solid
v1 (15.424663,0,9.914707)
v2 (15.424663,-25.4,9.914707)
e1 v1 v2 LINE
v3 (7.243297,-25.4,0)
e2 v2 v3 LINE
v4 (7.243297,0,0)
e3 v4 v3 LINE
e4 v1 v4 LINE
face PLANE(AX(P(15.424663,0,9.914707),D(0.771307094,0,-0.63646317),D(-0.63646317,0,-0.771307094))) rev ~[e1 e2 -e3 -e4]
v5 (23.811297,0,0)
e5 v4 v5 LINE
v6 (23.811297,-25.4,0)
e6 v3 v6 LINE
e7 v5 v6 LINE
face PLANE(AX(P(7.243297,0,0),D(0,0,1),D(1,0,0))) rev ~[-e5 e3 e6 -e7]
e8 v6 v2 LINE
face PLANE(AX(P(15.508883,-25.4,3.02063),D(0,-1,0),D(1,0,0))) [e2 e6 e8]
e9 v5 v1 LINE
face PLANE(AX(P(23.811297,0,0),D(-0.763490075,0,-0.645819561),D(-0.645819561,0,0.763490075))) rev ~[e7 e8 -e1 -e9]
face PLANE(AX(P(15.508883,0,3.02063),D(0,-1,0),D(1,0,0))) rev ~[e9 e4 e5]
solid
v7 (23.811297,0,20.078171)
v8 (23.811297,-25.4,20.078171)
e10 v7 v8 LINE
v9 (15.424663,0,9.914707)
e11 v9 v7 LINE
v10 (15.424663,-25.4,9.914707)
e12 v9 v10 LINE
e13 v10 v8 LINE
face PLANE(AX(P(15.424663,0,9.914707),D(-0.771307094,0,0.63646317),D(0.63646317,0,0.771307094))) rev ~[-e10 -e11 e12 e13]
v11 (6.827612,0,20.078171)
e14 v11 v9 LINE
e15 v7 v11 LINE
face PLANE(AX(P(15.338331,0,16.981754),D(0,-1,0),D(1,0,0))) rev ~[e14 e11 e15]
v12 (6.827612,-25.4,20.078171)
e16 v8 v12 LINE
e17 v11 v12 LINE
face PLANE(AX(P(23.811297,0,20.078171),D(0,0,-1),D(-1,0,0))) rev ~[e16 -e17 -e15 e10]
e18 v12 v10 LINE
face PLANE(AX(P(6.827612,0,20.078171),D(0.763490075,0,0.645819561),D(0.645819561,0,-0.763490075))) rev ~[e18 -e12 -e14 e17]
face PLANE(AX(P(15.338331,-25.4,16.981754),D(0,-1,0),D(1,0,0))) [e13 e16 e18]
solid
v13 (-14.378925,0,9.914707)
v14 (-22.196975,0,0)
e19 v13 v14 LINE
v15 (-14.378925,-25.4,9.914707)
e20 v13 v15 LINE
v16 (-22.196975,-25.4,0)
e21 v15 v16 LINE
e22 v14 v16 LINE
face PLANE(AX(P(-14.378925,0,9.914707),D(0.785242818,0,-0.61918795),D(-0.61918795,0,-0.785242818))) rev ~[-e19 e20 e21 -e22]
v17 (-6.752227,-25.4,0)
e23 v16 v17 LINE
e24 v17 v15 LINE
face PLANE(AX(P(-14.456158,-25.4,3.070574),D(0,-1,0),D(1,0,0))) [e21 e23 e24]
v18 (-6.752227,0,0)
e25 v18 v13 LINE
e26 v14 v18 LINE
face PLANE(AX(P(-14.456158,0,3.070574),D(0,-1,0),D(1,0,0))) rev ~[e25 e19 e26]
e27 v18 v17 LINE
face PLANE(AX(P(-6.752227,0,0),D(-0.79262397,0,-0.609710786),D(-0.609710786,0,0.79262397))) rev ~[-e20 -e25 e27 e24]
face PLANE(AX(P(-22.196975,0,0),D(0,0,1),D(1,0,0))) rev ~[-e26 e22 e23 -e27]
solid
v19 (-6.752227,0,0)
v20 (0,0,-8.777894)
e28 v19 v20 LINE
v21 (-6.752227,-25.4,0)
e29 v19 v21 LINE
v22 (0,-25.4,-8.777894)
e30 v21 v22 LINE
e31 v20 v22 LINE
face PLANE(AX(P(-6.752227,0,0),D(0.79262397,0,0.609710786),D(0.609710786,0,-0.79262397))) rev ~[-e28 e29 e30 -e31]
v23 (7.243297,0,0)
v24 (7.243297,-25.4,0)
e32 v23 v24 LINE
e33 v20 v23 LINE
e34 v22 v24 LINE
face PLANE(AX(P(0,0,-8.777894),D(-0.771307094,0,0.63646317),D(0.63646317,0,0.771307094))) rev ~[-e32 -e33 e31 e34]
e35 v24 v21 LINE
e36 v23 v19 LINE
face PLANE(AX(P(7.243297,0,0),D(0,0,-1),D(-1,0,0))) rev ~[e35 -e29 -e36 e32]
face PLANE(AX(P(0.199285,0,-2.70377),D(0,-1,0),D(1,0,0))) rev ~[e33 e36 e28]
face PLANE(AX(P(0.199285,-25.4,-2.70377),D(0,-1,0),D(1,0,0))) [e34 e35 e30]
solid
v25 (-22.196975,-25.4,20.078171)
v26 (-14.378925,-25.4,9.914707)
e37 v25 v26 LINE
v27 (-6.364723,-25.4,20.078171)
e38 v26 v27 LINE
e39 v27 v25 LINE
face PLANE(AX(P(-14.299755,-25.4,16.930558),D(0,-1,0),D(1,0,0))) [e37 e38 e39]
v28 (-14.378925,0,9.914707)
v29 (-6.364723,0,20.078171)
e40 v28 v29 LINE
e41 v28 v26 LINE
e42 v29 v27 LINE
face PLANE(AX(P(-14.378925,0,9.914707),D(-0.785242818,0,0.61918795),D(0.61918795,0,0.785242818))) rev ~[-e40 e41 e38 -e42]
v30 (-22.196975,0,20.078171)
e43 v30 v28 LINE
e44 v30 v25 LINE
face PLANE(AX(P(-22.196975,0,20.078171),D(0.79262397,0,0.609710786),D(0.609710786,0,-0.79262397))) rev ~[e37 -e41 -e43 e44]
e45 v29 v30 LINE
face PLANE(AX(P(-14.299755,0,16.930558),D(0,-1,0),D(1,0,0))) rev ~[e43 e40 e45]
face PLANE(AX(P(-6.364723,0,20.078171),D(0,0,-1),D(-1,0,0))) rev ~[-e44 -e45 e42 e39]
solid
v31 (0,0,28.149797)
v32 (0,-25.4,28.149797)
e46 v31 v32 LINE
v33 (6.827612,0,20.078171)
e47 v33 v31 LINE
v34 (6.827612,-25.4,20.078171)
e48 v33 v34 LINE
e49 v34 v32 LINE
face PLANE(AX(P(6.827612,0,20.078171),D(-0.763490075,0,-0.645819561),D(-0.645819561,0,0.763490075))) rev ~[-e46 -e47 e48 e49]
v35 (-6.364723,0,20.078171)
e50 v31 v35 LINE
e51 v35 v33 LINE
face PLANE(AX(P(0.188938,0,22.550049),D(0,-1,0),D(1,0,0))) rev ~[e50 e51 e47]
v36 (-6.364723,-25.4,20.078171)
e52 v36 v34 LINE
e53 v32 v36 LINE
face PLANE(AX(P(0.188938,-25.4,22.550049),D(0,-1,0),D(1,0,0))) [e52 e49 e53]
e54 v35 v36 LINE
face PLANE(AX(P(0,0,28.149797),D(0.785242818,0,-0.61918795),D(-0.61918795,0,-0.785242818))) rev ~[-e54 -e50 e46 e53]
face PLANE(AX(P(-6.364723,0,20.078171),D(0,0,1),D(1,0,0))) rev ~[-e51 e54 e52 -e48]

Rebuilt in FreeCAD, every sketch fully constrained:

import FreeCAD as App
import Part
import Sketcher

V = App.Vector
Q = App.Units.Quantity

doc = App.newDocument("Part")
body = doc.addObject("PartDesign::Body", "Body")

sketch1 = body.newObject("Sketcher::SketchObject", "Sketch")
sketch1.AttachmentSupport = (doc.getObject("XZ_Plane"), [""])
sketch1.MapMode = "FlatFace"
sketch1.addGeometry([
    Part.LineSegment(V(7, 20, 0), V(15, 10, 0)),
    Part.LineSegment(V(15, 10, 0), V(24, 20, 0)),
    Part.LineSegment(V(24, 20, 0), V(7, 20, 0)),
], False)
sketch1.addConstraint([
    Sketcher.Constraint("Coincident", 0, 2, 1, 1),
    Sketcher.Constraint("Coincident", 1, 2, 2, 1),
    Sketcher.Constraint("Coincident", 2, 2, 0, 1),
    Sketcher.Constraint("Horizontal", 2),
    Sketcher.Constraint("DistanceX", 2, 2, 2, 1, Q("16.983686 mm")),
    Sketcher.Constraint("DistanceY", -1, 1, 1, 2, Q("20.078171 mm")),
    Sketcher.Constraint("DistanceX", -1, 1, 2, 2, Q("6.827612 mm")),
    Sketcher.Constraint("DistanceX", 2, 2, 0, 2, Q("8.597052 mm")),
    Sketcher.Constraint("Distance", 0, Q("13.311848 mm")),
])
pad1 = body.newObject("PartDesign::Pad", "Pad")
pad1.Profile = sketch1
pad1.Length = Q("1 in")
body2 = doc.addObject("PartDesign::Body", "Body001")

sketch2 = body2.newObject("Sketcher::SketchObject", "Sketch001")
sketch2.AttachmentSupport = (doc.getObject("XZ_Plane001"), [""])
sketch2.MapMode = "FlatFace"
sketch2.addGeometry([
    Part.LineSegment(V(0, -9, 0), V(7, 0, 0)),
    Part.LineSegment(V(7, 0, 0), V(-7, 0, 0)),
    Part.LineSegment(V(-7, 0, 0), V(0, -9, 0)),
], False)
sketch2.addConstraint([
    Sketcher.Constraint("Coincident", 0, 2, 1, 1),
    Sketcher.Constraint("Coincident", 1, 2, 2, 1),
    Sketcher.Constraint("Coincident", 2, 2, 0, 1),
    Sketcher.Constraint("Horizontal", 1),
    Sketcher.Constraint("PointOnObject", 0, 2, -1),
    Sketcher.Constraint("PointOnObject", 2, 2, -2),
    Sketcher.Constraint("DistanceX", 1, 2, 1, 1, Q("13.995524 mm")),
    Sketcher.Constraint("Distance", 0, Q("11.380544 mm")),
    Sketcher.Constraint("Distance", 2, Q("11.074475 mm")),
])
pad2 = body2.newObject("PartDesign::Pad", "Pad001")
pad2.Profile = sketch2
pad2.Length = Q("1 in")
body3 = doc.addObject("PartDesign::Body", "Body002")

sketch3 = body3.newObject("Sketcher::SketchObject", "Sketch002")
sketch3.AttachmentSupport = (doc.getObject("XZ_Plane002"), [""])
sketch3.MapMode = "FlatFace"
sketch3.addGeometry([
    Part.LineSegment(V(-22, 20, 0), V(-14, 10, 0)),
    Part.LineSegment(V(-14, 10, 0), V(-6, 20, 0)),
    Part.LineSegment(V(-6, 20, 0), V(-22, 20, 0)),
], False)
sketch3.addConstraint([
    Sketcher.Constraint("Coincident", 0, 2, 1, 1),
    Sketcher.Constraint("Coincident", 1, 2, 2, 1),
    Sketcher.Constraint("Coincident", 2, 2, 0, 1),
    Sketcher.Constraint("Horizontal", 2),
    Sketcher.Constraint("DistanceX", 2, 2, 2, 1, Q("15.832251 mm")),
    Sketcher.Constraint("DistanceX", 0, 2, 1, 2, Q("8.014202 mm")),
    Sketcher.Constraint("DistanceY", -1, 1, 1, 2, Q("20.078171 mm")),
    Sketcher.Constraint("Distance", 0, Q("12.822554 mm")),
    Sketcher.Constraint("DistanceX", 0, 2, -1, 1, Q("14.378925 mm")),
])
pad3 = body3.newObject("PartDesign::Pad", "Pad002")
pad3.Profile = sketch3
pad3.Length = Q("1 in")
body4 = doc.addObject("PartDesign::Body", "Body003")

sketch4 = body4.newObject("Sketcher::SketchObject", "Sketch003")
sketch4.AttachmentSupport = (doc.getObject("XZ_Plane003"), [""])
sketch4.MapMode = "FlatFace"
sketch4.addGeometry([
    Part.LineSegment(V(-22, 0, 0), V(-7, 0, 0)),
    Part.LineSegment(V(-7, 0, 0), V(-14, 10, 0)),
    Part.LineSegment(V(-14, 10, 0), V(-22, 0, 0)),
], False)
sketch4.addConstraint([
    Sketcher.Constraint("Coincident", 0, 2, 1, 1),
    Sketcher.Constraint("Coincident", 1, 2, 2, 1),
    Sketcher.Constraint("Coincident", 2, 2, 0, 1),
    Sketcher.Constraint("Horizontal", 0),
    Sketcher.Constraint("PointOnObject", 0, 2, -1),
    Sketcher.Constraint("DistanceX", 1, 2, 0, 2, Q("7.626698 mm")),
    Sketcher.Constraint("DistanceX", 0, 1, 0, 2, Q("15.444748 mm")),
    Sketcher.Constraint("Distance", 1, Q("12.508715 mm")),
    Sketcher.Constraint("DistanceX", 0, 2, -1, 1, Q("6.752227 mm")),
])
pad4 = body4.newObject("PartDesign::Pad", "Pad003")
pad4.Profile = sketch4
pad4.Length = Q("1 in")
body5 = doc.addObject("PartDesign::Body", "Body004")

sketch5 = body5.newObject("Sketcher::SketchObject", "Sketch004")
sketch5.AttachmentSupport = (doc.getObject("XZ_Plane004"), [""])
sketch5.MapMode = "FlatFace"
sketch5.addGeometry([
    Part.LineSegment(V(-6, 20, 0), V(7, 20, 0)),
    Part.LineSegment(V(7, 20, 0), V(0, 28, 0)),
    Part.LineSegment(V(0, 28, 0), V(-6, 20, 0)),
], False)
sketch5.addConstraint([
    Sketcher.Constraint("Coincident", 0, 2, 1, 1),
    Sketcher.Constraint("Coincident", 1, 2, 2, 1),
    Sketcher.Constraint("Coincident", 2, 2, 0, 1),
    Sketcher.Constraint("Horizontal", 0),
    Sketcher.Constraint("PointOnObject", 1, 2, -2),
    Sketcher.Constraint("Distance", 1, Q("10.572011 mm")),
    Sketcher.Constraint("DistanceX", 0, 1, 0, 2, Q("13.192335 mm")),
    Sketcher.Constraint("DistanceX", -1, 1, 0, 2, Q("6.827612 mm")),
    Sketcher.Constraint("DistanceY", -1, 1, 0, 2, Q("20.078171 mm")),
])
pad5 = body5.newObject("PartDesign::Pad", "Pad004")
pad5.Profile = sketch5
pad5.Length = Q("1 in")
body6 = doc.addObject("PartDesign::Body", "Body005")

sketch6 = body6.newObject("Sketcher::SketchObject", "Sketch005")
sketch6.AttachmentSupport = (doc.getObject("XZ_Plane005"), [""])
sketch6.MapMode = "FlatFace"
sketch6.addGeometry([
    Part.LineSegment(V(7, 0, 0), V(24, 0, 0)),
    Part.LineSegment(V(24, 0, 0), V(15, 10, 0)),
    Part.LineSegment(V(15, 10, 0), V(7, 0, 0)),
], False)
sketch6.addConstraint([
    Sketcher.Constraint("Coincident", 0, 2, 1, 1),
    Sketcher.Constraint("Coincident", 1, 2, 2, 1),
    Sketcher.Constraint("Coincident", 2, 2, 0, 1),
    Sketcher.Constraint("Horizontal", 0),
    Sketcher.Constraint("PointOnObject", 0, 2, -1),
    Sketcher.Constraint("DistanceX", 0, 1, 0, 2, Q("16.568001 mm")),
    Sketcher.Constraint("Distance", 1, Q("12.986033 mm")),
    Sketcher.Constraint("Distance", 2, Q("12.854423 mm")),
    Sketcher.Constraint("DistanceX", -1, 1, 0, 2, Q("23.811297 mm")),
])
pad6 = body6.newObject("PartDesign::Pad", "Pad005")
pad6.Profile = sketch6
pad6.Length = Q("1 in")

doc.recompute()
